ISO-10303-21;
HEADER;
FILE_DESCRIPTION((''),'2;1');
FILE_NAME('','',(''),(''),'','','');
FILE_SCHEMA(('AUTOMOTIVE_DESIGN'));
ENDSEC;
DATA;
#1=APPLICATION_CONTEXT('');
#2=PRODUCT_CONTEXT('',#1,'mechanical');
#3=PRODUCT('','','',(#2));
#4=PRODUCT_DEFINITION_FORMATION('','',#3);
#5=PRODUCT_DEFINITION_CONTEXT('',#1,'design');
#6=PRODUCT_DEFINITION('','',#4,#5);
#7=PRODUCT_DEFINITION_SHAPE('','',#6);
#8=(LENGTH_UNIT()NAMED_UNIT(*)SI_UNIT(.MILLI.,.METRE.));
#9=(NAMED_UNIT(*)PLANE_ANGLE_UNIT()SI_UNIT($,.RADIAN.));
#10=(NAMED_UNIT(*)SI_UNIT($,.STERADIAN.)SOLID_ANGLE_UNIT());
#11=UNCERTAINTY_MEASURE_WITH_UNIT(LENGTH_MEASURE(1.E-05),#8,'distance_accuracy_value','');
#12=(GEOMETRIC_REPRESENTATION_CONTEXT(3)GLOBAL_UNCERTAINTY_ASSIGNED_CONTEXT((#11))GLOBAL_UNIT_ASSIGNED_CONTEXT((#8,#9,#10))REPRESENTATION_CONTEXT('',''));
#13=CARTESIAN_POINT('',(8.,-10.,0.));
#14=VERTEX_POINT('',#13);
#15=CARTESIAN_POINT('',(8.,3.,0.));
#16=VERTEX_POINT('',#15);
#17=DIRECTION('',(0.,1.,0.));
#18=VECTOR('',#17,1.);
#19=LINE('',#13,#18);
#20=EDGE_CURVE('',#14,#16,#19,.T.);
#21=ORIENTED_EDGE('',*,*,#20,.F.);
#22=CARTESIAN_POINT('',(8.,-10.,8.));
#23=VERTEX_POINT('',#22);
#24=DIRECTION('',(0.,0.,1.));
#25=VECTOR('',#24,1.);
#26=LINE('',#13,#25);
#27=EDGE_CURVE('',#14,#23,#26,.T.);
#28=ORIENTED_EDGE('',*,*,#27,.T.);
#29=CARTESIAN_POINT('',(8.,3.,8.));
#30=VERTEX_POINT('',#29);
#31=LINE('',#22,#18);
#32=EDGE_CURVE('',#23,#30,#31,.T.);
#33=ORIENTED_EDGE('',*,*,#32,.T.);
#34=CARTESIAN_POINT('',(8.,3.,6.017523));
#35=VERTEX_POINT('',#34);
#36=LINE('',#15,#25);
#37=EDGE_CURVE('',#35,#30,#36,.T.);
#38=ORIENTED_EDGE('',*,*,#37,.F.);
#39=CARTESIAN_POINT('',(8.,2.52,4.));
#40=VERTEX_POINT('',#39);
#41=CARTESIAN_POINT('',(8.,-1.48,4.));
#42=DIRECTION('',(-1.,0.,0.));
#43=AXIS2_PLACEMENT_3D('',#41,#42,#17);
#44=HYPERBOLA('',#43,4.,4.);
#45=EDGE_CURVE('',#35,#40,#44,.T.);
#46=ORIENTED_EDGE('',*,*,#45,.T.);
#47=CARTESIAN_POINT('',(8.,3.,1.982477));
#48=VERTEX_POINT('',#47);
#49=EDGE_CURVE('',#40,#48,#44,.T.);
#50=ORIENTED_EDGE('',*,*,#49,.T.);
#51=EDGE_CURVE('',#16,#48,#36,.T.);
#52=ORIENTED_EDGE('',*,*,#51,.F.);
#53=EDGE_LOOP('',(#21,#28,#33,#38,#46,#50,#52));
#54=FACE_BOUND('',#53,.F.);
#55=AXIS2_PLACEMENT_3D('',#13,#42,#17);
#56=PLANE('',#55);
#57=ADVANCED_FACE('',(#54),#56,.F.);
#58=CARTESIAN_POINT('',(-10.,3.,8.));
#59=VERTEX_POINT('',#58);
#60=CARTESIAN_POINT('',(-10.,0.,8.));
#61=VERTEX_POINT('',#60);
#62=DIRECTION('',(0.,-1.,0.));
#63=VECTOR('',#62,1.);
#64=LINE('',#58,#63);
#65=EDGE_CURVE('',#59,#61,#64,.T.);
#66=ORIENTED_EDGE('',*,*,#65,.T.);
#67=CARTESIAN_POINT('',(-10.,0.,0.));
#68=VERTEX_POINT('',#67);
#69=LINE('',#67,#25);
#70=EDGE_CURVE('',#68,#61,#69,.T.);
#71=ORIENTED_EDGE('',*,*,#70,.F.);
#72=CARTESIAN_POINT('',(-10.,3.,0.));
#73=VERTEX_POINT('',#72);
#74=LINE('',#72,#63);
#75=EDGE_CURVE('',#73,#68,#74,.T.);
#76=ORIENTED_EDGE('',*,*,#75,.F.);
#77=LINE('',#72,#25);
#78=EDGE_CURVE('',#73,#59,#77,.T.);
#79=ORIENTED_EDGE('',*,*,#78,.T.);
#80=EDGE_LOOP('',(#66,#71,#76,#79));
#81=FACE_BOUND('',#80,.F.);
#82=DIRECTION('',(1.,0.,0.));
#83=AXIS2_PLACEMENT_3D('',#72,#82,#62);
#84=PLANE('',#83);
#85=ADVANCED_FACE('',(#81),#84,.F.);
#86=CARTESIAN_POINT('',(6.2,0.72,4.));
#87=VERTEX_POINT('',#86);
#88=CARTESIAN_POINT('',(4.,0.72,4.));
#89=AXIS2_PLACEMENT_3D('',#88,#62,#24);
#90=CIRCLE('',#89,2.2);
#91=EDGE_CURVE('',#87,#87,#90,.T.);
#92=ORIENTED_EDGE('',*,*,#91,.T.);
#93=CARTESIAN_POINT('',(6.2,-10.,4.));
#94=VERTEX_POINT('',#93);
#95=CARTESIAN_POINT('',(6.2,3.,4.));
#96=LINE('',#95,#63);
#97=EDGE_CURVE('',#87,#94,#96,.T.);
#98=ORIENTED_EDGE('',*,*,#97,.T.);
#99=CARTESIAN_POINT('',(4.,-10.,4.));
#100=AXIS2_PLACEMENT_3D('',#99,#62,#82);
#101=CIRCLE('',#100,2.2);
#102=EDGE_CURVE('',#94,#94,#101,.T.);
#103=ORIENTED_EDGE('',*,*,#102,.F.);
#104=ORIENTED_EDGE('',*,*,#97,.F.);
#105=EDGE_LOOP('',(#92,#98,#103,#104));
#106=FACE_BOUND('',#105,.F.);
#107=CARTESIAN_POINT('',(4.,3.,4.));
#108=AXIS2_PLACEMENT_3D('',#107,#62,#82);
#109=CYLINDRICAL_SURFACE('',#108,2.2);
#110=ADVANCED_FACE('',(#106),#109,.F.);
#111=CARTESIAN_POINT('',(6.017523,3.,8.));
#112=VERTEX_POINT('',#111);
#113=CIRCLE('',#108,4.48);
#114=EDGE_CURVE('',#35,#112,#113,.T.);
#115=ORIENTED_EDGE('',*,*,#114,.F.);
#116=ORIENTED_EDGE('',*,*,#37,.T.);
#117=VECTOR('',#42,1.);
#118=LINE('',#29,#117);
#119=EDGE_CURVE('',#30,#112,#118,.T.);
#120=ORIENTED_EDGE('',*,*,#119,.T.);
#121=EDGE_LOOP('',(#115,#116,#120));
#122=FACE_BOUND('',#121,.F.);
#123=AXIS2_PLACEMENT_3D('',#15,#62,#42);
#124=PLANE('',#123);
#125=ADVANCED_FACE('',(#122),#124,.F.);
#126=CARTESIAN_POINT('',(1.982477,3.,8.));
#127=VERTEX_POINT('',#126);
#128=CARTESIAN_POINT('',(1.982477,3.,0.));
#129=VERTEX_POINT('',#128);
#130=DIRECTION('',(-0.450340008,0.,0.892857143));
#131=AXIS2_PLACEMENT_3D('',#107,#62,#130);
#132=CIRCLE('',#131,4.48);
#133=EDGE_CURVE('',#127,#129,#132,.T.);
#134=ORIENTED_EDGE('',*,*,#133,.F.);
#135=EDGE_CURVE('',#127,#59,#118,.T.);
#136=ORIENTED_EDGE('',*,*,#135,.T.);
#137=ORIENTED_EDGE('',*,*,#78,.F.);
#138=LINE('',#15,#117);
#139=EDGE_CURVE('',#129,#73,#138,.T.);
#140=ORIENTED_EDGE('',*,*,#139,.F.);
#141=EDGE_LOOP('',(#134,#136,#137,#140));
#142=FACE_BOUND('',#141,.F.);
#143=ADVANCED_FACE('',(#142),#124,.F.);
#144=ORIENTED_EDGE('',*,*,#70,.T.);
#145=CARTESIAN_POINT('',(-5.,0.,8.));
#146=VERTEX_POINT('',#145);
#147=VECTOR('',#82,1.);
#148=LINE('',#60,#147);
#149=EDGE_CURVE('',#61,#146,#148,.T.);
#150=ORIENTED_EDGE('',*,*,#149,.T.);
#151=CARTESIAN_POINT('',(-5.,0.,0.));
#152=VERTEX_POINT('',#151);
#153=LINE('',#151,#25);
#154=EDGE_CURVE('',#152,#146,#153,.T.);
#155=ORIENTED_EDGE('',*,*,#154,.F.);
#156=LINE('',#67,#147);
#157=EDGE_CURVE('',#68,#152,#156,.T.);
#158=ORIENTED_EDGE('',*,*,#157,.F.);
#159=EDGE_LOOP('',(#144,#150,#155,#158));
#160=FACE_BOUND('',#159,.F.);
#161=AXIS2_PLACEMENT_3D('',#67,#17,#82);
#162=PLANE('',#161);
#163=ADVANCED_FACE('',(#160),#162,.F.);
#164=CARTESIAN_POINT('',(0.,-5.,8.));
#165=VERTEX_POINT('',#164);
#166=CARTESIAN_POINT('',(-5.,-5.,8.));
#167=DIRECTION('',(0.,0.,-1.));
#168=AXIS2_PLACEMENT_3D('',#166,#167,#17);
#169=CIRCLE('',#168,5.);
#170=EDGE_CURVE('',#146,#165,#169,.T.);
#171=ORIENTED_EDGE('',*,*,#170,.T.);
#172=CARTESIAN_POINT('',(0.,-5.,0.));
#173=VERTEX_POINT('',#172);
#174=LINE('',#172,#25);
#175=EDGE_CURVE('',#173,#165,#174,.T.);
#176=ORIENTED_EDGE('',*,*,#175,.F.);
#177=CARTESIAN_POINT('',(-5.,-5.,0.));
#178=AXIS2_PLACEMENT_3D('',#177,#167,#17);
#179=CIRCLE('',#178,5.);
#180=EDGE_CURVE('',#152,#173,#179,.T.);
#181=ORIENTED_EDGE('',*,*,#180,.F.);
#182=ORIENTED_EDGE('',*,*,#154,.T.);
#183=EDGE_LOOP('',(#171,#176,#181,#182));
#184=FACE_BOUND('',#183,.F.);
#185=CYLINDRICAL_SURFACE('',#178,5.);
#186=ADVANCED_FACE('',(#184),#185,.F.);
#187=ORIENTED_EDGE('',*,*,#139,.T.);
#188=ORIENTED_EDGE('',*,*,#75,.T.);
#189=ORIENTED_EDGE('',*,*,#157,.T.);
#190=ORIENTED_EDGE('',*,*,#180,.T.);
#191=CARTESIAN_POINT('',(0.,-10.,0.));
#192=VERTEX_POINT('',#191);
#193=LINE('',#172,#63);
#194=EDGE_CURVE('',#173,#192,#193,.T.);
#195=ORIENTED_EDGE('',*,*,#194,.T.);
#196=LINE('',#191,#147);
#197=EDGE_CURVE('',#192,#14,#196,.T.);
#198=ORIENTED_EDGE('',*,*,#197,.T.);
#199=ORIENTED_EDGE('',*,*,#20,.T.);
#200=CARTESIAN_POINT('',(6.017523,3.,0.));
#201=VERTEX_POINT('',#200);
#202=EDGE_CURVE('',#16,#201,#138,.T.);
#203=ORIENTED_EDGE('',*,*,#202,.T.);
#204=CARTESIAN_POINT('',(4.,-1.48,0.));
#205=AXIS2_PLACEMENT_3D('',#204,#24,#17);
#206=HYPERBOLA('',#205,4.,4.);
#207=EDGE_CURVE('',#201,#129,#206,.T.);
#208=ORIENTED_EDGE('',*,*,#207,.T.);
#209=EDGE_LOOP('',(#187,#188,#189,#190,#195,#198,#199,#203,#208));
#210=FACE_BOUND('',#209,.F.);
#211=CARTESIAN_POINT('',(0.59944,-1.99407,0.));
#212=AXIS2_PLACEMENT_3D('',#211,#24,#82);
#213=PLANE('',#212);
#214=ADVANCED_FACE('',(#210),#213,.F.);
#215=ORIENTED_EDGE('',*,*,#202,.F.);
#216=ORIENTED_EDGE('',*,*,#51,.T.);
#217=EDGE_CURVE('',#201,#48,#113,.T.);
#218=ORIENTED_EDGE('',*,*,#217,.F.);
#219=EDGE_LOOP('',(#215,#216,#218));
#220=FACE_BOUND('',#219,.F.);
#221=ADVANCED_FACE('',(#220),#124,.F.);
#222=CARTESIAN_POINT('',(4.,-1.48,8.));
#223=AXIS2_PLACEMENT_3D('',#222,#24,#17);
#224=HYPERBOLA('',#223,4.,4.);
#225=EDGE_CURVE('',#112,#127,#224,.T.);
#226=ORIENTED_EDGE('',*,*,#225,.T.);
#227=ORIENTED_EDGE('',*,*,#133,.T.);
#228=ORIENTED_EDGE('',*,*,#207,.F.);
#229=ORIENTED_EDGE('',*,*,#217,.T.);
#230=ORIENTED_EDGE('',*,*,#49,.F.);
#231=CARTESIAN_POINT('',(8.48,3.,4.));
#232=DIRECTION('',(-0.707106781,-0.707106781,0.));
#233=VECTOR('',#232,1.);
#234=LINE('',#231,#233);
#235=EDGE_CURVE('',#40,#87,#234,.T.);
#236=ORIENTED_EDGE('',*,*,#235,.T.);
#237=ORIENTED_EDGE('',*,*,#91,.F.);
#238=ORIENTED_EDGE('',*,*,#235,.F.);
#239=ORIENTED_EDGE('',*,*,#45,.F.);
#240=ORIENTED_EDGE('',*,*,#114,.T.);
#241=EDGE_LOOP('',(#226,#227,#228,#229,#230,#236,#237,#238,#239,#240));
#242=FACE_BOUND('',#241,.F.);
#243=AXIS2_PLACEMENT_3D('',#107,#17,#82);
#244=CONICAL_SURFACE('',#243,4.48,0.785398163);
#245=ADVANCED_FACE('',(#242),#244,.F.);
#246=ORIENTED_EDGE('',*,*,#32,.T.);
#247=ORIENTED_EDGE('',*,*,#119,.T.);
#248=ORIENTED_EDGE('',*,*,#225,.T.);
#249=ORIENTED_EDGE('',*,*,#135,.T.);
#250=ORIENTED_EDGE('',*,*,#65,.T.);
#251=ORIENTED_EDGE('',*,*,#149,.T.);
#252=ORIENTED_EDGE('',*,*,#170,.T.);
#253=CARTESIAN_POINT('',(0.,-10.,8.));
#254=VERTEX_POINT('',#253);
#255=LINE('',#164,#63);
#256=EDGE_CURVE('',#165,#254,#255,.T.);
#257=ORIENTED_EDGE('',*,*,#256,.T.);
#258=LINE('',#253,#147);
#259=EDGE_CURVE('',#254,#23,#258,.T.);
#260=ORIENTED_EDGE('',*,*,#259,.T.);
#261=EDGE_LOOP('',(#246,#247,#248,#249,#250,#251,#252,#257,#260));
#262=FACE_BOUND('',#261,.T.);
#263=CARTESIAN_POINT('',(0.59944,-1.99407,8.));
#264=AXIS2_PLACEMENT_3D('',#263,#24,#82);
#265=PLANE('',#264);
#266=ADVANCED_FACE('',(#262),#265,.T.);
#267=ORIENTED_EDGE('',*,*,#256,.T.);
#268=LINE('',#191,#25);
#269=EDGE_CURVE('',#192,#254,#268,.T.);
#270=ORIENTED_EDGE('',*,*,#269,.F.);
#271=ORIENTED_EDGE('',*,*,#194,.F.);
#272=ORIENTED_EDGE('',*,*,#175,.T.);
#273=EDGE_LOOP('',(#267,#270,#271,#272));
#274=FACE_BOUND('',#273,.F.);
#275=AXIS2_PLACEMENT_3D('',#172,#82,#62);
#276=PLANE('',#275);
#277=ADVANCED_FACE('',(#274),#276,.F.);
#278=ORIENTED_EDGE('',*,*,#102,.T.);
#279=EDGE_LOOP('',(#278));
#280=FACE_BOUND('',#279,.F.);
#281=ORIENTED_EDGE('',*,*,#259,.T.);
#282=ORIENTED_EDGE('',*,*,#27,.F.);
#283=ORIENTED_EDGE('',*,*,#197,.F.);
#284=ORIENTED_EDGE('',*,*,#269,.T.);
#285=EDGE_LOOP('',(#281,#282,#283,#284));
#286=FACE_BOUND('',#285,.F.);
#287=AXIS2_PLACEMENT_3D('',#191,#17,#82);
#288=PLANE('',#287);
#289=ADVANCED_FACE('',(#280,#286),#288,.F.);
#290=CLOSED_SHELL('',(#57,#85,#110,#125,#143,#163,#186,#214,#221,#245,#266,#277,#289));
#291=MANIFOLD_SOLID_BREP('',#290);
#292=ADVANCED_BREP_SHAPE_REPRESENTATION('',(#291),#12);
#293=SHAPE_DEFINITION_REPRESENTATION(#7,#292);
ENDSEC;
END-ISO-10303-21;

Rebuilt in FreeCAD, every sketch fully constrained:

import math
import FreeCAD as App
import Part
import Sketcher

V = App.Vector

doc = App.newDocument("Part")
body = doc.addObject("PartDesign::Body", "Body")

# Sketch on XY plane
sketch1 = doc.addObject("Sketcher::SketchObject", "Sketch")
body.addObject(sketch1)
sketch1.AttachmentSupport = (doc.XY_Plane, [""])
sketch1.MapMode = "FlatFace"
sketch1.addGeometry([
    Part.LineSegment(V(-10, 0, 0), V(-5, 0, 0)),  # 0
    Part.ArcOfCircle(Part.Circle(V(-5, -5, 0), V(0, 0, 1), 5), math.radians(0), math.radians(90)),  # 1
    Part.LineSegment(V(0, -5, 0), V(0, -10, 0)),  # 2
    Part.LineSegment(V(0, -10, 0), V(8, -10, 0)),  # 3
    Part.LineSegment(V(8, -10, 0), V(8, 3, 0)),  # 4
    Part.LineSegment(V(8, 3, 0), V(-10, 3, 0)),  # 5
    Part.LineSegment(V(-10, 3, 0), V(-10, 0, 0)),  # 6
], False)
sketch1.addConstraint([
    Sketcher.Constraint("Tangent", 0, 2, 1, 2),
    Sketcher.Constraint("Tangent", 1, 1, 2, 1),
    Sketcher.Constraint("Coincident", 2, 2, 3, 1),
    Sketcher.Constraint("Coincident", 3, 2, 4, 1),
    Sketcher.Constraint("Coincident", 4, 2, 5, 1),
    Sketcher.Constraint("Coincident", 5, 2, 6, 1),
    Sketcher.Constraint("Coincident", 6, 2, 0, 1),
    Sketcher.Constraint("Horizontal", 0),
    Sketcher.Constraint("Vertical", 2),
    Sketcher.Constraint("Horizontal", 3),
    Sketcher.Constraint("Vertical", 4),
    Sketcher.Constraint("Horizontal", 5),
    Sketcher.Constraint("Vertical", 6),
    Sketcher.Constraint("PointOnObject", 0, 2, -1),
    Sketcher.Constraint("PointOnObject", 1, 1, -2),
    Sketcher.Constraint("Equal", 0, 2),
    Sketcher.Constraint("Radius", 1, 5.0),
    Sketcher.Constraint("DistanceX", 0, 1, 0, 2, 5.0),
    Sketcher.Constraint("DistanceX", 3, 1, 3, 2, 8.0),
    Sketcher.Constraint("DistanceY", 4, 1, 4, 2, 13.0),
])
pad1 = doc.addObject("PartDesign::Pad", "Pad")
body.addObject(pad1)
pad1.Profile = sketch1
pad1.Length = 8

# Sketch on XZ plane
sketch2 = doc.addObject("Sketcher::SketchObject", "Sketch001")
body.addObject(sketch2)
sketch2.AttachmentSupport = (doc.XZ_Plane, [""])
sketch2.MapMode = "FlatFace"
sketch2.AttachmentOffset = App.Placement(V(0, 0, -3), App.Rotation())
sketch2.addGeometry(Part.Circle(V(4, 4, 0), V(0, 0, 1), 2.2), False)
sketch2.addConstraint([
    Sketcher.Constraint("Diameter", 0, 4.4),
    Sketcher.Constraint("DistanceX", -1, 1, 0, 3, 4.0),
    Sketcher.Constraint("DistanceY", -1, 1, 0, 3, 4.0),
])
doc.recompute()
hole = doc.addObject("PartDesign::Hole", "Hole")
body.addObject(hole)
hole.Profile = sketch2
hole.ThreadType = "None"
hole.Diameter = 4.4
hole.DepthType = "ThroughAll"
hole.HoleCutType = "Countersink"
hole.HoleCutDiameter = 8.96
hole.HoleCutCountersinkAngle = 90
hole.Reversed = True

doc.recompute()
